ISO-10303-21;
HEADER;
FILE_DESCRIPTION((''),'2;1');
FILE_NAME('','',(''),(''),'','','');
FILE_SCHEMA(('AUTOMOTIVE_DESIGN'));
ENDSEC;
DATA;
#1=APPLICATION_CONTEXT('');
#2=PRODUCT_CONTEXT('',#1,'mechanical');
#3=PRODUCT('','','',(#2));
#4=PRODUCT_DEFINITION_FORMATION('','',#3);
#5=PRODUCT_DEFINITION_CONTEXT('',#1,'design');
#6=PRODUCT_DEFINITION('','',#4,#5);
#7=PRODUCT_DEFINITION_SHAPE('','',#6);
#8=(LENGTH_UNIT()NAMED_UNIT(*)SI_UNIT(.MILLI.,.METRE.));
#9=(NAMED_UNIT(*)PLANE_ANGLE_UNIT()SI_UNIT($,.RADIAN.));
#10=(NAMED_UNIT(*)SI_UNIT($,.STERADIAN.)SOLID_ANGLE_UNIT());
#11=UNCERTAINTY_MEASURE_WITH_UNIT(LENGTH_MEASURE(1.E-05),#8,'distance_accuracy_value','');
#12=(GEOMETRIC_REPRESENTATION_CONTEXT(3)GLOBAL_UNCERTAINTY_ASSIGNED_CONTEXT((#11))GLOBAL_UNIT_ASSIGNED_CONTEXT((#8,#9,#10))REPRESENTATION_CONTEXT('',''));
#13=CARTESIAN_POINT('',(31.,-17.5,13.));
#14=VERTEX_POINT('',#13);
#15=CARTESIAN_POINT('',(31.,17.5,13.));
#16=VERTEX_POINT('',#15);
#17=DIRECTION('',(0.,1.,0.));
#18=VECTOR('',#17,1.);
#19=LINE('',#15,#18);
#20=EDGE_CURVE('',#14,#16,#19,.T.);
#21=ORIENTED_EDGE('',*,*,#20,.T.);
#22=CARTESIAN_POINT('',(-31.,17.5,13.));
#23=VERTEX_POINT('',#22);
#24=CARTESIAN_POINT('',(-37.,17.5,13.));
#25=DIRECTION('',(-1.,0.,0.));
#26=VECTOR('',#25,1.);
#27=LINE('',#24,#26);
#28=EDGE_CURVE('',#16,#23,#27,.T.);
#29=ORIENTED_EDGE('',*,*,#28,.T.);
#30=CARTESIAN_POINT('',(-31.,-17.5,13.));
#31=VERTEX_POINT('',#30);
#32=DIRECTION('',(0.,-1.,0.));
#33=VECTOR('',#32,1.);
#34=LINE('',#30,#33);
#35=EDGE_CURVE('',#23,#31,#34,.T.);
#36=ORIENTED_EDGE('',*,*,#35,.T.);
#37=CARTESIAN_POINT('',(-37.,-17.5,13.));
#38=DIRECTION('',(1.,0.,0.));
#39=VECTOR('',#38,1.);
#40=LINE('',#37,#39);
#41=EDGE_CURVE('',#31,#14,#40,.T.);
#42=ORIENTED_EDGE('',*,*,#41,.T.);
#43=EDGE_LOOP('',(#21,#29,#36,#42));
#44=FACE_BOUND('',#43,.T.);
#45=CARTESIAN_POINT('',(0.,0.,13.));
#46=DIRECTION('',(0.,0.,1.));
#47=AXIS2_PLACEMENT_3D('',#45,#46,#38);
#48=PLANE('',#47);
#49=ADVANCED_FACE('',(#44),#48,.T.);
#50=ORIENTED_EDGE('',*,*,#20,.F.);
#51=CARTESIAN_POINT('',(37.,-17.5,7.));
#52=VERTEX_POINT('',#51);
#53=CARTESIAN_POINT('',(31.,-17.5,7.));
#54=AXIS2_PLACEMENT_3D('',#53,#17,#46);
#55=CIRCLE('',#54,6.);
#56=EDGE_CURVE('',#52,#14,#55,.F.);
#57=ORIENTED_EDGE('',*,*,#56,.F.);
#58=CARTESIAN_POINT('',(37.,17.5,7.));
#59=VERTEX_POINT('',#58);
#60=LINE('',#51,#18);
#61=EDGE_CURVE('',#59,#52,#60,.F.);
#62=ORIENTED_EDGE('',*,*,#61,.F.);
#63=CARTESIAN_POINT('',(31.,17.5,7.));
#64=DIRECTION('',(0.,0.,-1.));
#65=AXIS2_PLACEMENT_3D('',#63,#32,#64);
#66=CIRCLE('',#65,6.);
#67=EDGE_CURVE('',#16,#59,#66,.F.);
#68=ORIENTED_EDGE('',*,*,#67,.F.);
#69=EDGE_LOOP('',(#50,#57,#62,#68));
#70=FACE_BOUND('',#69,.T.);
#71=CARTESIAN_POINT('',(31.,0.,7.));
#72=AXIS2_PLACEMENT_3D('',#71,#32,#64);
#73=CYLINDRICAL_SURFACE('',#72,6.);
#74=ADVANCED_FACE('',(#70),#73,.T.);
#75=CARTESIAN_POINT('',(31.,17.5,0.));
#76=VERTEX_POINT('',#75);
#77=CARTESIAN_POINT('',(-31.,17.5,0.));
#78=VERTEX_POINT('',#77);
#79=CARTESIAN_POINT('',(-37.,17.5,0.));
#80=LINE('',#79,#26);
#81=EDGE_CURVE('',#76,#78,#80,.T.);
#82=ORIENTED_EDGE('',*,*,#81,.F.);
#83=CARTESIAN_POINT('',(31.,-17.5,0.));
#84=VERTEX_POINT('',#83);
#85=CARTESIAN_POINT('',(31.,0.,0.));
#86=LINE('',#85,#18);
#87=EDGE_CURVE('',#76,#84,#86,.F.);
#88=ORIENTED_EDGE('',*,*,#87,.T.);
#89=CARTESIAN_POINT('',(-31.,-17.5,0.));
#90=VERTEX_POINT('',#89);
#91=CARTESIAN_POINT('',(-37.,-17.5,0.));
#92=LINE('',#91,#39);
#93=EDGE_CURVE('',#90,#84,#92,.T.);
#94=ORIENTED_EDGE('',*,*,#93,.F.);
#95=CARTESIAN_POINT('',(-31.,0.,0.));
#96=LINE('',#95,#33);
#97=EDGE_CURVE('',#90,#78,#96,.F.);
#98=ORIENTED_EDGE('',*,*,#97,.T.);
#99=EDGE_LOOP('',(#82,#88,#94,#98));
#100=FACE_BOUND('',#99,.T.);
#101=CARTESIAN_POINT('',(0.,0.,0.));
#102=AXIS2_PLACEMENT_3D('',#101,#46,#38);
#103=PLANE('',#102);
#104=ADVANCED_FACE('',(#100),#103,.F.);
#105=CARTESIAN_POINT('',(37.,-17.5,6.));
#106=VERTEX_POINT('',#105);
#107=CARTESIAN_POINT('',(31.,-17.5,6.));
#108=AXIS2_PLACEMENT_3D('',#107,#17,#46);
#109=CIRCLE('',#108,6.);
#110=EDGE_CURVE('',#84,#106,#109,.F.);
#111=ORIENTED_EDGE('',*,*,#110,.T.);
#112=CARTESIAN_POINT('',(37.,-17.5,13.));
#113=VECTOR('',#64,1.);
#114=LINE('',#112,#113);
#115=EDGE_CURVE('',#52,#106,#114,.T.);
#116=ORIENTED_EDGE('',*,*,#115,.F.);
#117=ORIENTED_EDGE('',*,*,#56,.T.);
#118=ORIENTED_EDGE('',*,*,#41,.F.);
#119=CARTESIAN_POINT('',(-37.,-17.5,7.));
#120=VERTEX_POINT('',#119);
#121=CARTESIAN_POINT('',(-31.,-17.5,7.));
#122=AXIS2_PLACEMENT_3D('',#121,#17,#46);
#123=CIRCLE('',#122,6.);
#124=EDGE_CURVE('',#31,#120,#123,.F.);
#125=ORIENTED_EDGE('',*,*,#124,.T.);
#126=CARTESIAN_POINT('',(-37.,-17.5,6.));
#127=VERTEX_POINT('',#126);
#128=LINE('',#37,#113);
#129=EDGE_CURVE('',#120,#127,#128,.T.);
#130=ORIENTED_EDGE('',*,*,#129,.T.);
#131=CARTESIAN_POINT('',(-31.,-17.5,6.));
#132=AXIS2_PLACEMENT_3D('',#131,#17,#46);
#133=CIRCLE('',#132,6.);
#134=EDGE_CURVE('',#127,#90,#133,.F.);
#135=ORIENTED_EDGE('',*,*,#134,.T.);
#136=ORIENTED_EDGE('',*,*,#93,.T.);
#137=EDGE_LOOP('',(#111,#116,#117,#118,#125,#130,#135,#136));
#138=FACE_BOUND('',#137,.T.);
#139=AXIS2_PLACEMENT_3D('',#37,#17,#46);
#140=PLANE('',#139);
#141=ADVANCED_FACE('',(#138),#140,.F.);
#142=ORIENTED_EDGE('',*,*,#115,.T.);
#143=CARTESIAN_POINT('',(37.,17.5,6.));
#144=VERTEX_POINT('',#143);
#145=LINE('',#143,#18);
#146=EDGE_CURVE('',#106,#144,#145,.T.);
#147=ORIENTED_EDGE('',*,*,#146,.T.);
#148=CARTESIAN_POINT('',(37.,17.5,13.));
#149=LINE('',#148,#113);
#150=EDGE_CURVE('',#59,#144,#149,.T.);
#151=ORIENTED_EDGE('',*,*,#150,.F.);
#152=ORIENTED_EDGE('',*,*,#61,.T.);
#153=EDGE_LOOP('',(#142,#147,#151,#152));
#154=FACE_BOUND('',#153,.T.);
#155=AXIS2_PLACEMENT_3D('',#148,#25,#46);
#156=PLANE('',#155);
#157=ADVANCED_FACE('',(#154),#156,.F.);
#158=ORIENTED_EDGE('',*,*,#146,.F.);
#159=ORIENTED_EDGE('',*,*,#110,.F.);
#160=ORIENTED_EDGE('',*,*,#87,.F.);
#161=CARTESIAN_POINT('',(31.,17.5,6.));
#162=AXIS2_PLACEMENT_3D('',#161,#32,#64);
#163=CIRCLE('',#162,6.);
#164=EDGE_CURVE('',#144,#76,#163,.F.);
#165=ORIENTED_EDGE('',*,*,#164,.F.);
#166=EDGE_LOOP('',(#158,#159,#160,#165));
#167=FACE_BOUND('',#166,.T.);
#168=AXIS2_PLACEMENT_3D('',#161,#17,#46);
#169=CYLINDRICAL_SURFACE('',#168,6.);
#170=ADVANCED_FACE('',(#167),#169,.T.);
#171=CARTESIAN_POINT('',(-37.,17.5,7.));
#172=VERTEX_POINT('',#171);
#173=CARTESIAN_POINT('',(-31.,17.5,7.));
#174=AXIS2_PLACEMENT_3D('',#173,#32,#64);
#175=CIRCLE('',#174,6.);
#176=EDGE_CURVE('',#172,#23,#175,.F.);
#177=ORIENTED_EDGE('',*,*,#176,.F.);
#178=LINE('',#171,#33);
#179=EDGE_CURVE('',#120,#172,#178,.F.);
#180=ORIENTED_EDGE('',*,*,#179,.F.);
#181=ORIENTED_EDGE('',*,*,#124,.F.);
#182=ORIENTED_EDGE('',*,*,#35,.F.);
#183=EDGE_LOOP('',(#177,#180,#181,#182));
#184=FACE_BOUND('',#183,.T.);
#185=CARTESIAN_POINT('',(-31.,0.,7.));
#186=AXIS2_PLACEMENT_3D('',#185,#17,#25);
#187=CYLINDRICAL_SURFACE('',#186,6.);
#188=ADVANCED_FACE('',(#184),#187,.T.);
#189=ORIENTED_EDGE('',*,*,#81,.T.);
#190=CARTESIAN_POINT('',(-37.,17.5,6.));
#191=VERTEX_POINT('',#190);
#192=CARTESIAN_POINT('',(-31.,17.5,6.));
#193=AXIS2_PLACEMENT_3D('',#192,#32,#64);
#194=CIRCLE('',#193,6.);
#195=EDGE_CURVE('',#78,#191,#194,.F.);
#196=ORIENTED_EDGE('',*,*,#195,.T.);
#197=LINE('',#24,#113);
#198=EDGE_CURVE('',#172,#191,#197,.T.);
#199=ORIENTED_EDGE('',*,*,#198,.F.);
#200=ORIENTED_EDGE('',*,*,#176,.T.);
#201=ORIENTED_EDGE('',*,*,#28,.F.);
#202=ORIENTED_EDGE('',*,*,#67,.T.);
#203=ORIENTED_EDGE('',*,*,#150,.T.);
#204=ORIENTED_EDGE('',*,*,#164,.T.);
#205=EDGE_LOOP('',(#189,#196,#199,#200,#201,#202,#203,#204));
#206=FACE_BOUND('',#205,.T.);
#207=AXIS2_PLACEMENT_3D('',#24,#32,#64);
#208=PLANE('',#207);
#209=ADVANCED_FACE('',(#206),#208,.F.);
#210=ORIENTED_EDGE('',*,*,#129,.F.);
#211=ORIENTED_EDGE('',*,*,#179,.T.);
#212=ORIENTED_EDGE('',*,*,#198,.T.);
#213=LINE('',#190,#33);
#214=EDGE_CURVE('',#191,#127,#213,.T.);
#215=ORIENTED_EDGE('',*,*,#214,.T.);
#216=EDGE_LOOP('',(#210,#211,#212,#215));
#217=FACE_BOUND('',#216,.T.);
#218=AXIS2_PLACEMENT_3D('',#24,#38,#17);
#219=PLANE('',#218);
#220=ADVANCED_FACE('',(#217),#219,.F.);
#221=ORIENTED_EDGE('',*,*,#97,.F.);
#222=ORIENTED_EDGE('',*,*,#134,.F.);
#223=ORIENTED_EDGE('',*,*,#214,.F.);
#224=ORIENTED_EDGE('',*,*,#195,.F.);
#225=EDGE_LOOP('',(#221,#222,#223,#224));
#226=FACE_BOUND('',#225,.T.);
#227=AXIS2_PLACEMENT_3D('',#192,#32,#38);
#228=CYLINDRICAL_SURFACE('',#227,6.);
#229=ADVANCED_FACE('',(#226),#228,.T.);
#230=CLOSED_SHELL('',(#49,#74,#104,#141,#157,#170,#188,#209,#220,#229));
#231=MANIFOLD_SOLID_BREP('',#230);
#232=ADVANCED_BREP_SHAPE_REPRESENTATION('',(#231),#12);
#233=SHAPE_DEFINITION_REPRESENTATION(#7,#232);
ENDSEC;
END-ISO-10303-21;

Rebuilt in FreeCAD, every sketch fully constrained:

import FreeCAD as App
import Part
import Sketcher
from FreeCAD import Vector
Q = App.Units.Quantity


def edges_at(feature, points):
    """Names of the edges that pass closest to the given points."""
    edges = feature.Shape.Edges
    near = lambda p: min(range(len(edges)), key=lambda i: edges[i].distToShape(Part.Vertex(*p))[0])
    return sorted({f"Edge{near(p) + 1}" for p in points})


def add_polygon(sketch, points):
    """Adds a closed chain of lines whose ends are joined by coincident constraints."""
    first, n = sketch.GeometryCount, len(points)
    for a, b in zip(points, points[1:] + points[:1]):
        sketch.addGeometry(Part.LineSegment(App.Vector(*a, 0), App.Vector(*b, 0)), False)
    for i in range(n):
        sketch.addConstraint(Sketcher.Constraint("Coincident", first + i, 2, first + (i + 1) % n, 1))

doc = App.newDocument("Part")
body = doc.addObject("PartDesign::Body", "Body")

sketch1 = body.newObject("Sketcher::SketchObject", "Sketch")
sketch1.AttachmentSupport = (doc.getObject("XY_Plane"), [""])
sketch1.MapMode = "FlatFace"
add_polygon(sketch1, [(-37, 18), (-37, -18), (37, -18), (37, 18)])
sketch1.addConstraint([
    Sketcher.Constraint("Vertical", 0),
    Sketcher.Constraint("Horizontal", 1),
    Sketcher.Constraint("Vertical", 2),
    Sketcher.Constraint("Horizontal", 3),
    Sketcher.Constraint("Symmetric", 0, 2, 2, 2, -1, 1),
    Sketcher.Constraint("DistanceX", 1, 1, 1, 2, Q("74 mm")),
    Sketcher.Constraint("DistanceY", 0, 2, 0, 1, Q("35 mm")),
])
pad1 = body.newObject("PartDesign::Pad", "Pad")
pad1.Profile = sketch1
pad1.Length = 13
doc.recompute()

fillet = body.newObject("PartDesign::Fillet", "Fillet")
fillet.Base = (pad1, edges_at(pad1, [
    (-37, 0, 13),
    (37, 0, 13),
    (-37, 0, 0),
    (37, 0, 0),
]))
fillet.Radius = 6

doc.recompute()
